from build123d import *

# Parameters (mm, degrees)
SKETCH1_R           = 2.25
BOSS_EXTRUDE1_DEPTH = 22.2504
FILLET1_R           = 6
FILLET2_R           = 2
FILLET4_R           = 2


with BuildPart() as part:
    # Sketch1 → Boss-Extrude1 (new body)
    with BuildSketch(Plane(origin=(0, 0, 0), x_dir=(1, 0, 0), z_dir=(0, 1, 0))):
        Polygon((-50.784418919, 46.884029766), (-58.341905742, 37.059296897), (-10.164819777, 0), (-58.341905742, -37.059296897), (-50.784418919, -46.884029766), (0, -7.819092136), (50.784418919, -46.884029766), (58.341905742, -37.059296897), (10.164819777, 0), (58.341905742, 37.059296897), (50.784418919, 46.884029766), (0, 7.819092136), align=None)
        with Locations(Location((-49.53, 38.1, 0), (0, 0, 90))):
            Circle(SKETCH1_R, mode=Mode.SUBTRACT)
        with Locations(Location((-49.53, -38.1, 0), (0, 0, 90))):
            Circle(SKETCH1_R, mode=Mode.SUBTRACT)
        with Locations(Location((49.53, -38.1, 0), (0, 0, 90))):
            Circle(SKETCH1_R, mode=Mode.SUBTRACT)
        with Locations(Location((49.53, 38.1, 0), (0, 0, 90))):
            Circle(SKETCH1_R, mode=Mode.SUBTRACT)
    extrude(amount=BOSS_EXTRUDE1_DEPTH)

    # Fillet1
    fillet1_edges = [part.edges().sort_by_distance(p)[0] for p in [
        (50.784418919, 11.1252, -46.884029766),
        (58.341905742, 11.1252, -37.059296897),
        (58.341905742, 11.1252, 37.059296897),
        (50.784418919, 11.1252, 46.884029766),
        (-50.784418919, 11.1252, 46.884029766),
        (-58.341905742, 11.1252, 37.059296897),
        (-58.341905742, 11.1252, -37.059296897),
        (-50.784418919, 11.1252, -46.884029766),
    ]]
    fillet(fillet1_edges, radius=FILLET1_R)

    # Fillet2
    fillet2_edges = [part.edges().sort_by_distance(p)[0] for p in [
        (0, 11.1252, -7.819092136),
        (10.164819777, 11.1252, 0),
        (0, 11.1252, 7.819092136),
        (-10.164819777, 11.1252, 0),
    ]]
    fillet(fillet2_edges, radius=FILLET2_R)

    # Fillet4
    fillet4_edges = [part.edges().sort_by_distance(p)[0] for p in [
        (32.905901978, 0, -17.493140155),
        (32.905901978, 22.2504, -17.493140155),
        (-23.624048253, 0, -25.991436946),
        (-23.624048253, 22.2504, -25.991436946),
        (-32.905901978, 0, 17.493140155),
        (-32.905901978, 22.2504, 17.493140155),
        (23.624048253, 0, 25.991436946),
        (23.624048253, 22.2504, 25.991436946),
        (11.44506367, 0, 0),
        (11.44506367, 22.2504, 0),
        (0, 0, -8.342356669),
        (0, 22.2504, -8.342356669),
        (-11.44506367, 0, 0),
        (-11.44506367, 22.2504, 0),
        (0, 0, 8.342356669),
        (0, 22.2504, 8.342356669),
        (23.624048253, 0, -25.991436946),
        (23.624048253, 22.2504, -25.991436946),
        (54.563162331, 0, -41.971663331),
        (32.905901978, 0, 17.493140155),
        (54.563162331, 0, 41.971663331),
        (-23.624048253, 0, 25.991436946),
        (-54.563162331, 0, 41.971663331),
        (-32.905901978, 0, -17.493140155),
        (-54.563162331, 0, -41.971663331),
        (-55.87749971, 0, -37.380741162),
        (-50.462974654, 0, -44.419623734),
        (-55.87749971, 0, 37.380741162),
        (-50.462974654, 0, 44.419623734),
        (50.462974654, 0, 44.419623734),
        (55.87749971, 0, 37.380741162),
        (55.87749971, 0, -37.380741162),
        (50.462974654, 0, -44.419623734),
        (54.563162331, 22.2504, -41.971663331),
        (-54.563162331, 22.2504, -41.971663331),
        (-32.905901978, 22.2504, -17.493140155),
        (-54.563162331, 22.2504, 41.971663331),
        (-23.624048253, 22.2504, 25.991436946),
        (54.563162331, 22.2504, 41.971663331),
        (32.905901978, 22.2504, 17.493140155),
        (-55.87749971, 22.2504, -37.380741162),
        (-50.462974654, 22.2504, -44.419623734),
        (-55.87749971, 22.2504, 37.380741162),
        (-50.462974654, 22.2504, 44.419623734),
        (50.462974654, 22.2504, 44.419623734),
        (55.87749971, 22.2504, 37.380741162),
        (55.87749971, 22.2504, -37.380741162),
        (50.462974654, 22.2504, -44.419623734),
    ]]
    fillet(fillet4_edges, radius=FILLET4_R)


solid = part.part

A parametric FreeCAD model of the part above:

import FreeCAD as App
import Part
import Sketcher
from FreeCAD import Vector


def edges_at(feature, points):
    """Names of the edges that pass closest to the given points."""
    edges = feature.Shape.Edges
    near = lambda p: min(range(len(edges)), key=lambda i: edges[i].distToShape(Part.Vertex(*p))[0])
    return sorted({f"Edge{near(p) + 1}" for p in points})

doc = App.newDocument("Part")
body = doc.addObject("PartDesign::Body", "Body")

# Sketch on XZ plane
sketch1 = body.newObject("Sketcher::SketchObject", "Sketch")
sketch1.AttachmentSupport = (doc.getObject("XZ_Plane"), [""])
sketch1.MapMode = "FlatFace"
sketch1.addGeometry([
    Part.LineSegment(Vector(-50.8, -46.9, 0), Vector(-58.3, -37.1, 0)),  # 0
    Part.LineSegment(Vector(-58.3, -37.1, 0), Vector(-10.2, 0, 0)),  # 1
    Part.LineSegment(Vector(-10.2, 0, 0), Vector(-58.3, 37.1, 0)),  # 2
    Part.LineSegment(Vector(-58.3, 37.1, 0), Vector(-50.8, 46.9, 0)),  # 3
    Part.LineSegment(Vector(-50.8, 46.9, 0), Vector(0, 7.8, 0)),  # 4
    Part.LineSegment(Vector(0, 7.8, 0), Vector(50.8, 46.9, 0)),  # 5
    Part.LineSegment(Vector(50.8, 46.9, 0), Vector(58.3, 37.1, 0)),  # 6
    Part.LineSegment(Vector(58.3, 37.1, 0), Vector(10.2, 0, 0)),  # 7
    Part.LineSegment(Vector(10.2, 0, 0), Vector(58.3, -37.1, 0)),  # 8
    Part.LineSegment(Vector(58.3, -37.1, 0), Vector(50.8, -46.9, 0)),  # 9
    Part.LineSegment(Vector(50.8, -46.9, 0), Vector(0, -7.8, 0)),  # 10
    Part.LineSegment(Vector(0, -7.8, 0), Vector(-50.8, -46.9, 0)),  # 11
    Part.Circle(Vector(-49.5, 38.1, 0), Vector(0, 0, 1), 2.2),  # 12
    Part.Circle(Vector(49.5, 38.1, 0), Vector(0, 0, 1), 2.2),  # 13
    Part.Circle(Vector(-49.5, -38.1, 0), Vector(0, 0, 1), 2.2),  # 14
    Part.Circle(Vector(49.5, -38.1, 0), Vector(0, 0, 1), 2.2),  # 15
], False)
sketch1.addConstraint([
    Sketcher.Constraint("Coincident", 0, 2, 1, 1),
    Sketcher.Constraint("Coincident", 1, 2, 2, 1),
    Sketcher.Constraint("Coincident", 2, 2, 3, 1),
    Sketcher.Constraint("Coincident", 3, 2, 4, 1),
    Sketcher.Constraint("Coincident", 4, 2, 5, 1),
    Sketcher.Constraint("Coincident", 5, 2, 6, 1),
    Sketcher.Constraint("Coincident", 6, 2, 7, 1),
    Sketcher.Constraint("Coincident", 7, 2, 8, 1),
    Sketcher.Constraint("Coincident", 8, 2, 9, 1),
    Sketcher.Constraint("Coincident", 9, 2, 10, 1),
    Sketcher.Constraint("Coincident", 10, 2, 11, 1),
    Sketcher.Constraint("Coincident", 11, 2, 0, 1),
    Sketcher.Constraint("Equal", 12, 13),
    Sketcher.Constraint("Equal", 13, 14),
    Sketcher.Constraint("Equal", 14, 15),
    Sketcher.Constraint("Symmetric", 13, 3, 14, 3, -1, 1),
    Sketcher.Constraint("Symmetric", 12, 3, 15, 3, -1, 1),
    Sketcher.Constraint("Symmetric", 0, 2, 6, 2, -1, 1),
    Sketcher.Constraint("Symmetric", 1, 2, 7, 2, -1, 1),
    Sketcher.Constraint("Symmetric", 2, 2, 8, 2, -1, 1),
    Sketcher.Constraint("Symmetric", 3, 2, 9, 2, -1, 1),
    Sketcher.Constraint("Symmetric", 4, 2, 10, 2, -1, 1),
    Sketcher.Constraint("Symmetric", 5, 2, 11, 2, -1, 1),
    Sketcher.Constraint("Symmetric", 12, 3, 13, 3, -2),
    Sketcher.Constraint("Symmetric", 3, 2, 5, 2, -2),
    Sketcher.Constraint("Symmetric", 2, 2, 6, 2, -2),
    Sketcher.Constraint("PointOnObject", 1, 2, -1),
    Sketcher.Constraint("PointOnObject", 4, 2, -2),
    Sketcher.Constraint("Perpendicular", 0, 1),
    Sketcher.Constraint("Perpendicular", 3, 4),
    Sketcher.Constraint("Diameter", 12, 4.5),
    Sketcher.Constraint("DistanceY", -1, 1, 12, 3, 38.1),
    Sketcher.Constraint("DistanceX", 12, 3, -1, 1, 49.53),
    Sketcher.Constraint("Distance", 0, 12.3952),
    Sketcher.Constraint("DistanceX", 3, 2, 1, 2, 40.619599),
    Sketcher.Constraint("Distance", 4, 64.071262),
    Sketcher.Constraint("DistanceX", 1, 2, -1, 1, 10.16482),
])
pad1 = body.newObject("PartDesign::Pad", "Pad")
pad1.Profile = sketch1
pad1.Length = 22.2504
pad1.Reversed = True
doc.recompute()

fillet = body.newObject("PartDesign::Fillet", "Fillet")
fillet.Base = (pad1, edges_at(pad1, [
    (50.784, 11.125, -46.884),
    (58.342, 11.125, -37.059),
    (58.342, 11.125, 37.059),
    (50.784, 11.125, 46.884),
    (-50.784, 11.125, 46.884),
    (-58.342, 11.125, 37.059),
    (-58.342, 11.125, -37.059),
    (-50.784, 11.125, -46.884),
]))
fillet.Radius = 6
doc.recompute()

fillet2 = body.newObject("PartDesign::Fillet", "Fillet001")
fillet2.Base = (fillet, edges_at(fillet, [
    (0, 11.125, -7.819),
    (10.165, 11.125, 0),
    (0, 11.125, 7.819),
    (-10.165, 11.125, 0),
]))
fillet2.Radius = 2
doc.recompute()

fillet3 = body.newObject("PartDesign::Fillet", "Fillet002")
fillet3.Base = (fillet2, edges_at(fillet2, [
    (32.906, 0, -17.493),
    (32.906, 22.25, -17.493),
    (-23.624, 0, -25.991),
    (-23.624, 22.25, -25.991),
    (-32.906, 0, 17.493),
    (-32.906, 22.25, 17.493),
    (23.624, 0, 25.991),
    (23.624, 22.25, 25.991),
    (11.445, 0, 0),
    (11.445, 22.25, 0),
    (0, 0, -8.342),
    (0, 22.25, -8.342),
    (-11.445, 0, 0),
    (-11.445, 22.25, 0),
    (0, 0, 8.342),
    (0, 22.25, 8.342),
    (23.624, 0, -25.991),
    (23.624, 22.25, -25.991),
    (54.563, 0, -41.972),
    (32.906, 0, 17.493),
    (54.563, 0, 41.972),
    (-23.624, 0, 25.991),
    (-54.563, 0, 41.972),
    (-32.906, 0, -17.493),
    (-54.563, 0, -41.972),
    (-55.877, 0, -37.381),
    (-50.463, 0, -44.42),
    (-55.877, 0, 37.381),
    (-50.463, 0, 44.42),
    (50.463, 0, 44.42),
    (55.877, 0, 37.381),
    (55.877, 0, -37.381),
    (50.463, 0, -44.42),
    (54.563, 22.25, -41.972),
    (-54.563, 22.25, -41.972),
    (-32.906, 22.25, -17.493),
    (-54.563, 22.25, 41.972),
    (-23.624, 22.25, 25.991),
    (54.563, 22.25, 41.972),
    (32.906, 22.25, 17.493),
    (-55.877, 22.25, -37.381),
    (-50.463, 22.25, -44.42),
    (-55.877, 22.25, 37.381),
    (-50.463, 22.25, 44.42),
    (50.463, 22.25, 44.42),
    (55.877, 22.25, 37.381),
    (55.877, 22.25, -37.381),
    (50.463, 22.25, -44.42),
]))
fillet3.Radius = 2

doc.recompute()
